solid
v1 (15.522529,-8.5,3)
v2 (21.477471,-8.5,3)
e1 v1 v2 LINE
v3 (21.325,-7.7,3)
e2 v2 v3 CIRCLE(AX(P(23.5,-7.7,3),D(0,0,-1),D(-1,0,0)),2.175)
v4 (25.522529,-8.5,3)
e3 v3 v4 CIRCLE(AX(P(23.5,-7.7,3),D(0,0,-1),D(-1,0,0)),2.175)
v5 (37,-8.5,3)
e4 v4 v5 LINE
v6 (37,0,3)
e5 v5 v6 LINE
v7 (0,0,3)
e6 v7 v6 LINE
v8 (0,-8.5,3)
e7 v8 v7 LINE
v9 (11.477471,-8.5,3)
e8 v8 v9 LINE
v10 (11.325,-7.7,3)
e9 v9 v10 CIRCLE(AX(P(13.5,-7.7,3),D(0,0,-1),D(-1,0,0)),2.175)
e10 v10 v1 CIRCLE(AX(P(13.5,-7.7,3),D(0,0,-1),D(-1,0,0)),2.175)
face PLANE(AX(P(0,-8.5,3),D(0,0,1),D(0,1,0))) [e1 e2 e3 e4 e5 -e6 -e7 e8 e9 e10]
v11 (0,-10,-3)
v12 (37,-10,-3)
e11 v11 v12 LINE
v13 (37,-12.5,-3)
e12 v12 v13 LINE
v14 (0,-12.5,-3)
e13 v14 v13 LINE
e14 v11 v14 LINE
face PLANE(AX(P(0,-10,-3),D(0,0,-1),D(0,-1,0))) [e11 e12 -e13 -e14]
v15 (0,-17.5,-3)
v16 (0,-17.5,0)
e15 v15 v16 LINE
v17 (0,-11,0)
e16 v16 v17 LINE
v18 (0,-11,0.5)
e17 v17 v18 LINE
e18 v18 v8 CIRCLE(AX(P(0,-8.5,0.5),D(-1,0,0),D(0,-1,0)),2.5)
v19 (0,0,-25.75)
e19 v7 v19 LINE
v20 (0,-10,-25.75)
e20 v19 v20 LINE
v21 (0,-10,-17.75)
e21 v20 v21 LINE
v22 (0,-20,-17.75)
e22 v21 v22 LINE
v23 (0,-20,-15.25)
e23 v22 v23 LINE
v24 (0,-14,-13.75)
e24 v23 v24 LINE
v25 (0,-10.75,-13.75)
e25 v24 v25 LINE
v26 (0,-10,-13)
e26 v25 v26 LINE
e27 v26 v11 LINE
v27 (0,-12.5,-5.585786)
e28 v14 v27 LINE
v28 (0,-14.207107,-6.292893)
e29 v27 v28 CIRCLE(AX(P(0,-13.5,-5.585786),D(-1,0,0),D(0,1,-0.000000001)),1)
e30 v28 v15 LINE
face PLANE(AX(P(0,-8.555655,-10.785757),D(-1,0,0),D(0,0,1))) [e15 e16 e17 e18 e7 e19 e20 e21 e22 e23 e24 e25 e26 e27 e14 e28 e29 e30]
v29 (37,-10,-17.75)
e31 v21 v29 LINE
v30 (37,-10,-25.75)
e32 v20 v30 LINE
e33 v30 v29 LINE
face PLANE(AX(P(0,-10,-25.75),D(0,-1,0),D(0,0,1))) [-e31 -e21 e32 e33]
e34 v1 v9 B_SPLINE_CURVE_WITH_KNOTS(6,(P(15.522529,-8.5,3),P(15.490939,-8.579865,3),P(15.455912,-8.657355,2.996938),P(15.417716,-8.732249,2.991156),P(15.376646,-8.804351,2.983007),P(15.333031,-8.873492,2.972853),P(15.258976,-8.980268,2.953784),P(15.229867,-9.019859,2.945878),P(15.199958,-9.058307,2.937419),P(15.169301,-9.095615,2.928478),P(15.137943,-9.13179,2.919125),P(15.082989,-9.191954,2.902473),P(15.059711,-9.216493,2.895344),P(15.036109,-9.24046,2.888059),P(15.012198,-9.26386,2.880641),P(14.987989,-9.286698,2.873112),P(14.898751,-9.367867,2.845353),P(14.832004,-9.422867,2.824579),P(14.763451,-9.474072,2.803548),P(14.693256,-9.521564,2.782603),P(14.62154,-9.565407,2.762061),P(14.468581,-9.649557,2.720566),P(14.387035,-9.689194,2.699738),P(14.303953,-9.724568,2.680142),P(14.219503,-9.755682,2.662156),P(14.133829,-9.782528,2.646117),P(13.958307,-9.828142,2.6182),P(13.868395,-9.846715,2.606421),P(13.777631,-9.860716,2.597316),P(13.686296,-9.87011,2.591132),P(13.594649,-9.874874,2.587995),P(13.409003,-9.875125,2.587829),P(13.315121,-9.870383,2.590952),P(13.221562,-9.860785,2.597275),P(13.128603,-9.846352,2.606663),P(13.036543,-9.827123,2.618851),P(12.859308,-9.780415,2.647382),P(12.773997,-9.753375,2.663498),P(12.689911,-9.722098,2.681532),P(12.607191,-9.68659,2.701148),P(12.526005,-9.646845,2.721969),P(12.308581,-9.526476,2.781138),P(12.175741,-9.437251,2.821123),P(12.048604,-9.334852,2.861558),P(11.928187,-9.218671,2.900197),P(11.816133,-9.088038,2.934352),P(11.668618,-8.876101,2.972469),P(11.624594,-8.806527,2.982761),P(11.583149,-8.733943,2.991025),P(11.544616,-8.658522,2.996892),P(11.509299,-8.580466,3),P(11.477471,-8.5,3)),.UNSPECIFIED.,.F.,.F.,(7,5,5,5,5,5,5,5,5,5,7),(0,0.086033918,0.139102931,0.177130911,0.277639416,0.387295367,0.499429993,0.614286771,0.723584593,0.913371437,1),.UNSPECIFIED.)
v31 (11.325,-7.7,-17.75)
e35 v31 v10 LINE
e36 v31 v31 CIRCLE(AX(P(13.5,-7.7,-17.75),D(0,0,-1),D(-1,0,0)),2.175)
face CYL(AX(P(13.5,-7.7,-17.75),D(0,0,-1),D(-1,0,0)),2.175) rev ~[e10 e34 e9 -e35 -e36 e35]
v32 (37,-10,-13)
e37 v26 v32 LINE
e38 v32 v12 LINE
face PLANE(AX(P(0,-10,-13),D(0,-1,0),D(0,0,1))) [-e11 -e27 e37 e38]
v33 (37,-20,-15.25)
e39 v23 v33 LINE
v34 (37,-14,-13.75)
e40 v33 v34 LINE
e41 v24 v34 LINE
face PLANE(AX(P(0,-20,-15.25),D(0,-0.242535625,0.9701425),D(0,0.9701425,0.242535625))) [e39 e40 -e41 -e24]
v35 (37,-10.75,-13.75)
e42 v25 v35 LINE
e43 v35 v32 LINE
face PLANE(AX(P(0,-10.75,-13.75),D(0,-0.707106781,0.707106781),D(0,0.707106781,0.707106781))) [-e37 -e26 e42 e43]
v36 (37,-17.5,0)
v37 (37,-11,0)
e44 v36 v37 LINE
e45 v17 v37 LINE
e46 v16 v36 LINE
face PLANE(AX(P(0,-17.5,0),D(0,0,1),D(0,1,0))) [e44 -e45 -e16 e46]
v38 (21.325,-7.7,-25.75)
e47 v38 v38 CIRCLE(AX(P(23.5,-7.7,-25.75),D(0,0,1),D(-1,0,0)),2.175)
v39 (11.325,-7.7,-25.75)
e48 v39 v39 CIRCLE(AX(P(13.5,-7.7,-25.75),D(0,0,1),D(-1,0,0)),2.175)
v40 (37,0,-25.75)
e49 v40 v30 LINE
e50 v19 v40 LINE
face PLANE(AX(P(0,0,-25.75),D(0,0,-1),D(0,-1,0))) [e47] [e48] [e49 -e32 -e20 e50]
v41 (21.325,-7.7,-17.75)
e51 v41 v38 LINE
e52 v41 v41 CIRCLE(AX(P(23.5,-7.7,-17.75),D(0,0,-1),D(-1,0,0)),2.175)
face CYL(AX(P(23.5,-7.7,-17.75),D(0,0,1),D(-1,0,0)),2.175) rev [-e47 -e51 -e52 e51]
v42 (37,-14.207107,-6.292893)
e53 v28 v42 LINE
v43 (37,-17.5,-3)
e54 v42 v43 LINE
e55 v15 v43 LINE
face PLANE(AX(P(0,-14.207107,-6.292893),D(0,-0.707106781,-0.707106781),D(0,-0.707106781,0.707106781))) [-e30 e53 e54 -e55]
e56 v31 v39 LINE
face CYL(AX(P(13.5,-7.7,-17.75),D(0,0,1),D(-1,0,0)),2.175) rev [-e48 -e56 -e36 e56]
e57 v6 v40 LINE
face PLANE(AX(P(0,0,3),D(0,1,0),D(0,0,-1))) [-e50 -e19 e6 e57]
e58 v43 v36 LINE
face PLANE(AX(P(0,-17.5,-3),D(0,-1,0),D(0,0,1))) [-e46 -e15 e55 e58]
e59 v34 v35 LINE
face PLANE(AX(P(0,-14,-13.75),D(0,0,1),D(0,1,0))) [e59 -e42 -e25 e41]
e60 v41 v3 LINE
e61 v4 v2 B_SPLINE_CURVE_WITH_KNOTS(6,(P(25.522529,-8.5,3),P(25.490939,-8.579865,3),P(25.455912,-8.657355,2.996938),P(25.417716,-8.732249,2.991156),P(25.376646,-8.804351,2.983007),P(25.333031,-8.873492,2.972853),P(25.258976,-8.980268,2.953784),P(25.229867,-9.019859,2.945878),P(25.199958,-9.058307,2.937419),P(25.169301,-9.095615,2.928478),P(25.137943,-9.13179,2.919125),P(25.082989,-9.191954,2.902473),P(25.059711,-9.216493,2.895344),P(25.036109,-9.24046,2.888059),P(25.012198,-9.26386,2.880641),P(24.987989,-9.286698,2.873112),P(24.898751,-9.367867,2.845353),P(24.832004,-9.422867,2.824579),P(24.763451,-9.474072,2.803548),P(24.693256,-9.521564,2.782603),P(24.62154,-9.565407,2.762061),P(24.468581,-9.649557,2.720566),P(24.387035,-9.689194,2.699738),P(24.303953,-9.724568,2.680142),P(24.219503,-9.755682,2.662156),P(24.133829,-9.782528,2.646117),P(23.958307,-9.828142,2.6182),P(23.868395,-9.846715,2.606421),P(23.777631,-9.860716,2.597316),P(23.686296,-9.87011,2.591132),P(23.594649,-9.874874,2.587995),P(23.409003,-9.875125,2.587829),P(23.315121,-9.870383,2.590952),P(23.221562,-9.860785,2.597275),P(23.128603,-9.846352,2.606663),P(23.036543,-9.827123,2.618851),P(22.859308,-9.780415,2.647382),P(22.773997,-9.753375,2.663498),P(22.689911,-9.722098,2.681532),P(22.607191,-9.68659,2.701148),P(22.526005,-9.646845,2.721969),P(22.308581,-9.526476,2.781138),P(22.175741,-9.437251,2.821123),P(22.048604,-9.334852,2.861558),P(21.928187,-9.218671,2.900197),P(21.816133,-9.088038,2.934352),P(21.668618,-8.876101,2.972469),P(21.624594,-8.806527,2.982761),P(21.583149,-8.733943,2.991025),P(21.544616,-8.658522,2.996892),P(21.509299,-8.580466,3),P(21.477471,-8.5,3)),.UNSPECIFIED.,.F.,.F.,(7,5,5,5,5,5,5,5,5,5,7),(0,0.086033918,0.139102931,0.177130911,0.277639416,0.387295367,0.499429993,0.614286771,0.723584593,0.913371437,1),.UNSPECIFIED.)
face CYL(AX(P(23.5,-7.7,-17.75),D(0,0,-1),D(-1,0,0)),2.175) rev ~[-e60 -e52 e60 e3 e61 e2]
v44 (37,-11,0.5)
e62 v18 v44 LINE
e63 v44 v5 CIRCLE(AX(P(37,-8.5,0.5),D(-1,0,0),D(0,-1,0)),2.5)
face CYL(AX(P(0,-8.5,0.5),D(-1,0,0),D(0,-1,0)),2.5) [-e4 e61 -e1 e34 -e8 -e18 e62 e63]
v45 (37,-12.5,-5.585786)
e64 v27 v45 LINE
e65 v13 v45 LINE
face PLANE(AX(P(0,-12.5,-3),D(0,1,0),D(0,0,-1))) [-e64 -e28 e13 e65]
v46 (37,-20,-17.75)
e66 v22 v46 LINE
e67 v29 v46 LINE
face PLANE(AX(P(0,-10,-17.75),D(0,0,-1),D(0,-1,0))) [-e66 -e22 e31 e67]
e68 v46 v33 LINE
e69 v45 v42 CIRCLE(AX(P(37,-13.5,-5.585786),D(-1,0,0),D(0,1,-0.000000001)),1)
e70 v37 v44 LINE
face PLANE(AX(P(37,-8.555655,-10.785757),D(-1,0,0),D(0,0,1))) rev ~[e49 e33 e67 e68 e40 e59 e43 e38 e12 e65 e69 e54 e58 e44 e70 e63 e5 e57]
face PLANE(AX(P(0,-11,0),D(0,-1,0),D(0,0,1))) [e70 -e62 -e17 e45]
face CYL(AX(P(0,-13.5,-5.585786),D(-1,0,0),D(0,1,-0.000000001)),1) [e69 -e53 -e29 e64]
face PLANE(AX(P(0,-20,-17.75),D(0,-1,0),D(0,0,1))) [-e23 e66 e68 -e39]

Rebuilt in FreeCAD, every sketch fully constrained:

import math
import FreeCAD as App
import Part
import Sketcher

V = App.Vector
Q = App.Units.Quantity

doc = App.newDocument("Part")
body = doc.addObject("PartDesign::Body", "Body")

# Sketch on YZ plane
sketch1 = doc.addObject("Sketcher::SketchObject", "Sketch")
body.addObject(sketch1)
sketch1.AttachmentSupport = (doc.YZ_Plane, [""])
sketch1.MapMode = "FlatFace"
sketch1.addGeometry([
    Part.LineSegment(V(-10, -25.75, 0), V(0, -25.75, 0)),  # 0
    Part.LineSegment(V(0, -25.75, 0), V(0, 3, 0)),  # 1
    Part.LineSegment(V(0, 3, 0), V(-8.5, 3, 0)),  # 2
    Part.ArcOfCircle(Part.Circle(V(-8.5, 0.5, 0), V(0, 0, 1), 2.5), math.radians(90), math.radians(180)),  # 3
    Part.LineSegment(V(-11, 0.5, 0), V(-11, 0, 0)),  # 4
    Part.LineSegment(V(-11, 0, 0), V(-17.5, 0, 0)),  # 5
    Part.LineSegment(V(-17.5, 0, 0), V(-17.5, -3, 0)),  # 6
    Part.LineSegment(V(-17.5, -3, 0), V(-14.207107, -6.292893, 0)),  # 7
    Part.ArcOfCircle(Part.Circle(V(-13.5, -5.585786, 0), V(0, 0, 1), 1), math.radians(-135), math.radians(0)),  # 8
    Part.LineSegment(V(-12.5, -5.585786, 0), V(-12.5, -3, 0)),  # 9
    Part.LineSegment(V(-12.5, -3, 0), V(-10, -3, 0)),  # 10
    Part.LineSegment(V(-10, -3, 0), V(-10, -13, 0)),  # 11
    Part.LineSegment(V(-10, -13, 0), V(-10.75, -13.75, 0)),  # 12
    Part.LineSegment(V(-10.75, -13.75, 0), V(-14, -13.75, 0)),  # 13
    Part.LineSegment(V(-14, -13.75, 0), V(-20, -15.25, 0)),  # 14
    Part.LineSegment(V(-20, -15.25, 0), V(-20, -17.75, 0)),  # 15
    Part.LineSegment(V(-20, -17.75, 0), V(-10, -17.75, 0)),  # 16
    Part.LineSegment(V(-10, -17.75, 0), V(-10, -25.75, 0)),  # 17
], False)
sketch1.addConstraint([
    Sketcher.Constraint("Coincident", 0, 2, 1, 1),
    Sketcher.Constraint("Coincident", 1, 2, 2, 1),
    Sketcher.Constraint("Tangent", 2, 2, 3, 1),
    Sketcher.Constraint("Tangent", 3, 2, 4, 1),
    Sketcher.Constraint("Coincident", 4, 2, 5, 1),
    Sketcher.Constraint("Coincident", 5, 2, 6, 1),
    Sketcher.Constraint("Coincident", 6, 2, 7, 1),
    Sketcher.Constraint("Tangent", 7, 2, 8, 1),
    Sketcher.Constraint("Tangent", 8, 2, 9, 1),
    Sketcher.Constraint("Coincident", 9, 2, 10, 1),
    Sketcher.Constraint("Coincident", 10, 2, 11, 1),
    Sketcher.Constraint("Coincident", 11, 2, 12, 1),
    Sketcher.Constraint("Coincident", 12, 2, 13, 1),
    Sketcher.Constraint("Coincident", 13, 2, 14, 1),
    Sketcher.Constraint("Coincident", 14, 2, 15, 1),
    Sketcher.Constraint("Coincident", 15, 2, 16, 1),
    Sketcher.Constraint("Coincident", 16, 2, 17, 1),
    Sketcher.Constraint("Coincident", 17, 2, 0, 1),
    Sketcher.Constraint("Horizontal", 0),
    Sketcher.Constraint("Vertical", 1),
    Sketcher.Constraint("Horizontal", 2),
    Sketcher.Constraint("Vertical", 4),
    Sketcher.Constraint("Horizontal", 5),
    Sketcher.Constraint("Vertical", 6),
    Sketcher.Constraint("Vertical", 9),
    Sketcher.Constraint("Horizontal", 10),
    Sketcher.Constraint("Vertical", 11),
    Sketcher.Constraint("Horizontal", 13),
    Sketcher.Constraint("Vertical", 15),
    Sketcher.Constraint("Horizontal", 16),
    Sketcher.Constraint("Vertical", 17),
    Sketcher.Constraint("PointOnObject", 0, 2, -2),
    Sketcher.Constraint("PointOnObject", 4, 2, -1),
    Sketcher.Constraint("Perpendicular", 7, 12),
    Sketcher.Constraint("Horizontal", 6, 2, 9, 2),
    Sketcher.Constraint("Vertical", 11, 2, 16, 2),
    Sketcher.Constraint("Equal", 0, 16),
    Sketcher.Constraint("Equal", 16, 11),
    Sketcher.Constraint("Equal", 10, 15),
    Sketcher.Constraint("Radius", 8, 1.0),
    Sketcher.Constraint("Radius", 3, 2.5),
    Sketcher.Constraint("DistanceX", 0, 1, 0, 2, 10.0),
    Sketcher.Constraint("DistanceY", 6, 2, 6, 1, 3.0),
    Sketcher.Constraint("DistanceY", 17, 2, 17, 1, 8.0),
    Sketcher.Constraint("Angle", 7, Q("-45 deg")),
    Sketcher.Constraint("DistanceX", 2, 2, 2, 1, 8.5),
    Sketcher.Constraint("DistanceX", 5, 2, 5, 1, 6.5),
    Sketcher.Constraint("DistanceX", 10, 1, 10, 2, 2.5),
    Sketcher.Constraint("DistanceY", 4, 2, 4, 1, 0.5),
    Sketcher.Constraint("DistanceX", 13, 2, -1, 1, 14.0),
    Sketcher.Constraint("DistanceY", 15, 2, 13, 2, 4.0),
    Sketcher.Constraint("DistanceX", 13, 2, 13, 1, 3.25),
])
pad1 = doc.addObject("PartDesign::Pad", "Pad")
body.addObject(pad1)
pad1.Profile = sketch1
pad1.Length = 37

# Sketch on XY plane
sketch2 = doc.addObject("Sketcher::SketchObject", "Sketch001")
body.addObject(sketch2)
sketch2.AttachmentSupport = (doc.XY_Plane, [""])
sketch2.MapMode = "FlatFace"
sketch2.AttachmentOffset = App.Placement(V(0, 0, -17.75), App.Rotation())
sketch2.addGeometry([
    Part.Circle(V(23.5, -7.7, 0), V(0, 0, 1), 2.175),
    Part.Circle(V(13.5, -7.7, 0), V(0, 0, 1), 2.175),
], False)
sketch2.addConstraint([
    Sketcher.Constraint("Equal", 0, 1),
    Sketcher.Constraint("Horizontal", 0, 3, 1, 3),
    Sketcher.Constraint("Diameter", 0, 4.35),
    Sketcher.Constraint("DistanceX", 1, 3, 0, 3, 10.0),
    Sketcher.Constraint("DistanceX", -1, 1, 0, 3, 23.5),
    Sketcher.Constraint("DistanceY", 0, 3, -1, 1, 7.7),
])
pocket1 = doc.addObject("PartDesign::Pocket", "Pocket")
body.addObject(pocket1)
pocket1.Profile = sketch2
pocket1.Type = "ThroughAll"
pocket1.Midplane = True

doc.recompute()
